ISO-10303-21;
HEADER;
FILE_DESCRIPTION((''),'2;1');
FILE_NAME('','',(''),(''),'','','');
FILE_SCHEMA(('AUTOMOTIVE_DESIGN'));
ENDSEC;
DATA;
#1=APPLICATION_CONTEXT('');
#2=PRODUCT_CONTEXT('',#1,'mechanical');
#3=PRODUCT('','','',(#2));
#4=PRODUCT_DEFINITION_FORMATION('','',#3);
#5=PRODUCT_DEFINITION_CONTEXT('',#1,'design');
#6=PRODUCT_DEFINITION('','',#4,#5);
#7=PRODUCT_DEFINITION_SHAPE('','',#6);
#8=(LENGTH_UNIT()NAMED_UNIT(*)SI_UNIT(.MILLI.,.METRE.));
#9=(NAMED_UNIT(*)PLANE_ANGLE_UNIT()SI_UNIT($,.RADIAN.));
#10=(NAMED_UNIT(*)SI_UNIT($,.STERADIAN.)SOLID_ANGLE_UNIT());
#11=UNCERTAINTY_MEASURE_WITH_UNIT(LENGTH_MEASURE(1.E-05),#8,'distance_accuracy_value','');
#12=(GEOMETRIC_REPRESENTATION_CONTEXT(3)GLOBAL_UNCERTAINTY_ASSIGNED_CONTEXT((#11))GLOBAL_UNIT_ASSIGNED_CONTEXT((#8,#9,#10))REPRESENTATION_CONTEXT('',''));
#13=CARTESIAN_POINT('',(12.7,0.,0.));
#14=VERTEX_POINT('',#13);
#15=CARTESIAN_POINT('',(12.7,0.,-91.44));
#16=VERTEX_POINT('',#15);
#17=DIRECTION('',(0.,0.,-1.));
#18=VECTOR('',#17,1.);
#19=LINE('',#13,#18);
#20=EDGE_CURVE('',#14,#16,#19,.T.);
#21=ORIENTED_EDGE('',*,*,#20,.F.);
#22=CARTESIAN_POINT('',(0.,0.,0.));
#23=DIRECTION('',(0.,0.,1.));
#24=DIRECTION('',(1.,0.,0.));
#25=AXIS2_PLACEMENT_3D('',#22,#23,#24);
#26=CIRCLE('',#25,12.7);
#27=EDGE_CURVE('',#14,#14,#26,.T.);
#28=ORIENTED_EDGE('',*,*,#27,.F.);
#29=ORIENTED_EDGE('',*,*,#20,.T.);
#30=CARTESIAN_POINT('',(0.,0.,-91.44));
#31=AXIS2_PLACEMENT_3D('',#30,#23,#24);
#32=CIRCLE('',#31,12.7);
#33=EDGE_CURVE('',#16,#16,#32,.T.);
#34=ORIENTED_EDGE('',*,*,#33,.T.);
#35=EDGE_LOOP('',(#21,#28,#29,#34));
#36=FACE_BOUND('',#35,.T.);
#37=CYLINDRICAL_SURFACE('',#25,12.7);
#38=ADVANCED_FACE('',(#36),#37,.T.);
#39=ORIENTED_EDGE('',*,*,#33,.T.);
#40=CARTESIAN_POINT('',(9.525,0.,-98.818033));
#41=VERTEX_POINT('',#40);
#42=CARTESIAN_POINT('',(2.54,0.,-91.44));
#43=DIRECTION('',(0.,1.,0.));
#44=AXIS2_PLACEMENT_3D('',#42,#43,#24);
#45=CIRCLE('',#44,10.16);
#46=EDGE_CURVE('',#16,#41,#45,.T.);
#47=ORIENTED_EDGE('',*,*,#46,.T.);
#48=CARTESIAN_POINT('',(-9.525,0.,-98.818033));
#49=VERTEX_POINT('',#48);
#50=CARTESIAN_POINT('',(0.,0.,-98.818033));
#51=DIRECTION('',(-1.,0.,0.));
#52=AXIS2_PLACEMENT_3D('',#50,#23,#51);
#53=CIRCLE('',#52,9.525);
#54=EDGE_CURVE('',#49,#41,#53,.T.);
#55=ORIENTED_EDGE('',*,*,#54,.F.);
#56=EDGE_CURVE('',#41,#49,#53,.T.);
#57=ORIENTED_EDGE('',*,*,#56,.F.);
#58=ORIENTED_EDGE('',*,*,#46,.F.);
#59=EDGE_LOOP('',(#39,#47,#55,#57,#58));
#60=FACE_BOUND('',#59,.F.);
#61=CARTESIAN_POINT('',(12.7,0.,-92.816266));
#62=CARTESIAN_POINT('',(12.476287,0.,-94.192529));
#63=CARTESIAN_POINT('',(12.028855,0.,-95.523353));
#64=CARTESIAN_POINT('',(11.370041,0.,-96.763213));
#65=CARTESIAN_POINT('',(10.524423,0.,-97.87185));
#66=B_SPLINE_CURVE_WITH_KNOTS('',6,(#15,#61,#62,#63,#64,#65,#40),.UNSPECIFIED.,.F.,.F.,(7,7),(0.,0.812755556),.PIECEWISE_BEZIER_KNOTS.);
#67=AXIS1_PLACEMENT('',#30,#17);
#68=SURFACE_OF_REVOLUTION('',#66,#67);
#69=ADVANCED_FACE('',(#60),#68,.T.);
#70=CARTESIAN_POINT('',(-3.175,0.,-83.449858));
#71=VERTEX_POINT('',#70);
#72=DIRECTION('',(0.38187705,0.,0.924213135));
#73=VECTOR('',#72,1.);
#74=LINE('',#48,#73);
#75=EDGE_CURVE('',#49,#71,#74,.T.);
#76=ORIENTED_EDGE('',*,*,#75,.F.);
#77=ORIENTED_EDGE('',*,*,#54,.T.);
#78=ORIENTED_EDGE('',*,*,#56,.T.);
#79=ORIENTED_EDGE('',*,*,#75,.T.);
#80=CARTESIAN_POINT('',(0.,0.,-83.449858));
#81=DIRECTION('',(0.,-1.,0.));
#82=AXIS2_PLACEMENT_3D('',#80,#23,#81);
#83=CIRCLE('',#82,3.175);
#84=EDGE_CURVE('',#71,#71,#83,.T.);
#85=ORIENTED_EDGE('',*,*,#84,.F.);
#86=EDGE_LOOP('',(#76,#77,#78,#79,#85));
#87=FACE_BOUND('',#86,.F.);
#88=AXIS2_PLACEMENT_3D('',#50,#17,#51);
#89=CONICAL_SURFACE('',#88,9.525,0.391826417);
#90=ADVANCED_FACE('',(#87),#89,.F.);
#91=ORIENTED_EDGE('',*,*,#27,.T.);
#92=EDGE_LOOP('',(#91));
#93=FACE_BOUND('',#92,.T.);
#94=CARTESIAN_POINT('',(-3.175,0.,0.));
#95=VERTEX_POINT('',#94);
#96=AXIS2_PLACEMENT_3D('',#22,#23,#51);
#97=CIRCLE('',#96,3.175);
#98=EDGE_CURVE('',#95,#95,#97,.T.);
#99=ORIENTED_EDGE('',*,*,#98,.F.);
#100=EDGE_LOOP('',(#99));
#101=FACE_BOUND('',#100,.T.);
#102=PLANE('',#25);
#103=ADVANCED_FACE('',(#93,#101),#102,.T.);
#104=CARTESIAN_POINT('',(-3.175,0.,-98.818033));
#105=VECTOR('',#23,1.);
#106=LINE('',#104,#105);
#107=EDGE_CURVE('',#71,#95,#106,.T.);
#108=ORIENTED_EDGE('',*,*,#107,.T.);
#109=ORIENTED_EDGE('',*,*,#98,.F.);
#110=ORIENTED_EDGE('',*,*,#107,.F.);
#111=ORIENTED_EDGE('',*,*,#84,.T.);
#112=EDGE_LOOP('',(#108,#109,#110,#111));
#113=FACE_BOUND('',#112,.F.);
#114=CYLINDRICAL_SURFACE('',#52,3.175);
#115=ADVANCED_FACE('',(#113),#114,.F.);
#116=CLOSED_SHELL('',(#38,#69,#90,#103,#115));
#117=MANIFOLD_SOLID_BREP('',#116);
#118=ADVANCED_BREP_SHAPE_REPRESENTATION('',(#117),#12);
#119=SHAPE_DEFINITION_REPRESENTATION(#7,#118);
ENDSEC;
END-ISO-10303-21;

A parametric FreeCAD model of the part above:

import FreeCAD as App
import Part
import Sketcher

V = App.Vector
Q = App.Units.Quantity


def edges_at(feature, points):
    """Names of the edges that pass closest to the given points."""
    edges = feature.Shape.Edges
    near = lambda p: min(range(len(edges)), key=lambda i: edges[i].distToShape(Part.Vertex(*p))[0])
    return sorted({f"Edge{near(p) + 1}" for p in points})

doc = App.newDocument("Part")
body = doc.addObject("PartDesign::Body", "Body")

sketch1 = doc.addObject("Sketcher::SketchObject", "Sketch")
body.addObject(sketch1)
sketch1.AttachmentSupport = (doc.XY_Plane, [""])
sketch1.MapMode = "FlatFace"
sketch1.addGeometry(Part.Circle(V(0, 0, 0), V(0, 0, 1), 13), False)
sketch1.addConstraint([
    Sketcher.Constraint("Coincident", 0, 3, -1, 1),
    Sketcher.Constraint("Diameter", 0, Q("1 in")),
])
pad1 = doc.addObject("PartDesign::Pad", "Pad")
body.addObject(pad1)
pad1.Profile = sketch1
pad1.Length = Q("4 in")
pad1.Reversed = True
doc.recompute()

fillet = doc.addObject("PartDesign::Fillet", "Fillet")
body.addObject(fillet)
fillet.Base = (pad1, edges_at(pad1, [(-12.7, 0, -101.6)]))
fillet.Radius = Q("0.4 in")

sketch2 = doc.addObject("Sketcher::SketchObject", "Sketch001")
body.addObject(sketch2)
sketch2.AttachmentSupport = (doc.XY_Plane, [""])
sketch2.MapMode = "FlatFace"
sketch2.AttachmentOffset = App.Placement(V(0, 0, -98.818033), App.Rotation())
sketch2.addGeometry(Part.Circle(V(0, 0, 0), V(0, 0, 1), 3.2), False)
sketch2.addConstraint([
    Sketcher.Constraint("Coincident", 0, 3, -1, 1),
    Sketcher.Constraint("Diameter", 0, Q("0.25 in")),
])
doc.recompute()
hole = doc.addObject("PartDesign::Hole", "Hole")
body.addObject(hole)
hole.Profile = sketch2
hole.ThreadType = "None"
hole.Diameter = Q("0.25 in")
hole.DepthType = "ThroughAll"
hole.HoleCutType = "Countersink"
hole.HoleCutDiameter = Q("0.75 in")
hole.HoleCutCountersinkAngle = 44.9
hole.Reversed = True

doc.recompute()
